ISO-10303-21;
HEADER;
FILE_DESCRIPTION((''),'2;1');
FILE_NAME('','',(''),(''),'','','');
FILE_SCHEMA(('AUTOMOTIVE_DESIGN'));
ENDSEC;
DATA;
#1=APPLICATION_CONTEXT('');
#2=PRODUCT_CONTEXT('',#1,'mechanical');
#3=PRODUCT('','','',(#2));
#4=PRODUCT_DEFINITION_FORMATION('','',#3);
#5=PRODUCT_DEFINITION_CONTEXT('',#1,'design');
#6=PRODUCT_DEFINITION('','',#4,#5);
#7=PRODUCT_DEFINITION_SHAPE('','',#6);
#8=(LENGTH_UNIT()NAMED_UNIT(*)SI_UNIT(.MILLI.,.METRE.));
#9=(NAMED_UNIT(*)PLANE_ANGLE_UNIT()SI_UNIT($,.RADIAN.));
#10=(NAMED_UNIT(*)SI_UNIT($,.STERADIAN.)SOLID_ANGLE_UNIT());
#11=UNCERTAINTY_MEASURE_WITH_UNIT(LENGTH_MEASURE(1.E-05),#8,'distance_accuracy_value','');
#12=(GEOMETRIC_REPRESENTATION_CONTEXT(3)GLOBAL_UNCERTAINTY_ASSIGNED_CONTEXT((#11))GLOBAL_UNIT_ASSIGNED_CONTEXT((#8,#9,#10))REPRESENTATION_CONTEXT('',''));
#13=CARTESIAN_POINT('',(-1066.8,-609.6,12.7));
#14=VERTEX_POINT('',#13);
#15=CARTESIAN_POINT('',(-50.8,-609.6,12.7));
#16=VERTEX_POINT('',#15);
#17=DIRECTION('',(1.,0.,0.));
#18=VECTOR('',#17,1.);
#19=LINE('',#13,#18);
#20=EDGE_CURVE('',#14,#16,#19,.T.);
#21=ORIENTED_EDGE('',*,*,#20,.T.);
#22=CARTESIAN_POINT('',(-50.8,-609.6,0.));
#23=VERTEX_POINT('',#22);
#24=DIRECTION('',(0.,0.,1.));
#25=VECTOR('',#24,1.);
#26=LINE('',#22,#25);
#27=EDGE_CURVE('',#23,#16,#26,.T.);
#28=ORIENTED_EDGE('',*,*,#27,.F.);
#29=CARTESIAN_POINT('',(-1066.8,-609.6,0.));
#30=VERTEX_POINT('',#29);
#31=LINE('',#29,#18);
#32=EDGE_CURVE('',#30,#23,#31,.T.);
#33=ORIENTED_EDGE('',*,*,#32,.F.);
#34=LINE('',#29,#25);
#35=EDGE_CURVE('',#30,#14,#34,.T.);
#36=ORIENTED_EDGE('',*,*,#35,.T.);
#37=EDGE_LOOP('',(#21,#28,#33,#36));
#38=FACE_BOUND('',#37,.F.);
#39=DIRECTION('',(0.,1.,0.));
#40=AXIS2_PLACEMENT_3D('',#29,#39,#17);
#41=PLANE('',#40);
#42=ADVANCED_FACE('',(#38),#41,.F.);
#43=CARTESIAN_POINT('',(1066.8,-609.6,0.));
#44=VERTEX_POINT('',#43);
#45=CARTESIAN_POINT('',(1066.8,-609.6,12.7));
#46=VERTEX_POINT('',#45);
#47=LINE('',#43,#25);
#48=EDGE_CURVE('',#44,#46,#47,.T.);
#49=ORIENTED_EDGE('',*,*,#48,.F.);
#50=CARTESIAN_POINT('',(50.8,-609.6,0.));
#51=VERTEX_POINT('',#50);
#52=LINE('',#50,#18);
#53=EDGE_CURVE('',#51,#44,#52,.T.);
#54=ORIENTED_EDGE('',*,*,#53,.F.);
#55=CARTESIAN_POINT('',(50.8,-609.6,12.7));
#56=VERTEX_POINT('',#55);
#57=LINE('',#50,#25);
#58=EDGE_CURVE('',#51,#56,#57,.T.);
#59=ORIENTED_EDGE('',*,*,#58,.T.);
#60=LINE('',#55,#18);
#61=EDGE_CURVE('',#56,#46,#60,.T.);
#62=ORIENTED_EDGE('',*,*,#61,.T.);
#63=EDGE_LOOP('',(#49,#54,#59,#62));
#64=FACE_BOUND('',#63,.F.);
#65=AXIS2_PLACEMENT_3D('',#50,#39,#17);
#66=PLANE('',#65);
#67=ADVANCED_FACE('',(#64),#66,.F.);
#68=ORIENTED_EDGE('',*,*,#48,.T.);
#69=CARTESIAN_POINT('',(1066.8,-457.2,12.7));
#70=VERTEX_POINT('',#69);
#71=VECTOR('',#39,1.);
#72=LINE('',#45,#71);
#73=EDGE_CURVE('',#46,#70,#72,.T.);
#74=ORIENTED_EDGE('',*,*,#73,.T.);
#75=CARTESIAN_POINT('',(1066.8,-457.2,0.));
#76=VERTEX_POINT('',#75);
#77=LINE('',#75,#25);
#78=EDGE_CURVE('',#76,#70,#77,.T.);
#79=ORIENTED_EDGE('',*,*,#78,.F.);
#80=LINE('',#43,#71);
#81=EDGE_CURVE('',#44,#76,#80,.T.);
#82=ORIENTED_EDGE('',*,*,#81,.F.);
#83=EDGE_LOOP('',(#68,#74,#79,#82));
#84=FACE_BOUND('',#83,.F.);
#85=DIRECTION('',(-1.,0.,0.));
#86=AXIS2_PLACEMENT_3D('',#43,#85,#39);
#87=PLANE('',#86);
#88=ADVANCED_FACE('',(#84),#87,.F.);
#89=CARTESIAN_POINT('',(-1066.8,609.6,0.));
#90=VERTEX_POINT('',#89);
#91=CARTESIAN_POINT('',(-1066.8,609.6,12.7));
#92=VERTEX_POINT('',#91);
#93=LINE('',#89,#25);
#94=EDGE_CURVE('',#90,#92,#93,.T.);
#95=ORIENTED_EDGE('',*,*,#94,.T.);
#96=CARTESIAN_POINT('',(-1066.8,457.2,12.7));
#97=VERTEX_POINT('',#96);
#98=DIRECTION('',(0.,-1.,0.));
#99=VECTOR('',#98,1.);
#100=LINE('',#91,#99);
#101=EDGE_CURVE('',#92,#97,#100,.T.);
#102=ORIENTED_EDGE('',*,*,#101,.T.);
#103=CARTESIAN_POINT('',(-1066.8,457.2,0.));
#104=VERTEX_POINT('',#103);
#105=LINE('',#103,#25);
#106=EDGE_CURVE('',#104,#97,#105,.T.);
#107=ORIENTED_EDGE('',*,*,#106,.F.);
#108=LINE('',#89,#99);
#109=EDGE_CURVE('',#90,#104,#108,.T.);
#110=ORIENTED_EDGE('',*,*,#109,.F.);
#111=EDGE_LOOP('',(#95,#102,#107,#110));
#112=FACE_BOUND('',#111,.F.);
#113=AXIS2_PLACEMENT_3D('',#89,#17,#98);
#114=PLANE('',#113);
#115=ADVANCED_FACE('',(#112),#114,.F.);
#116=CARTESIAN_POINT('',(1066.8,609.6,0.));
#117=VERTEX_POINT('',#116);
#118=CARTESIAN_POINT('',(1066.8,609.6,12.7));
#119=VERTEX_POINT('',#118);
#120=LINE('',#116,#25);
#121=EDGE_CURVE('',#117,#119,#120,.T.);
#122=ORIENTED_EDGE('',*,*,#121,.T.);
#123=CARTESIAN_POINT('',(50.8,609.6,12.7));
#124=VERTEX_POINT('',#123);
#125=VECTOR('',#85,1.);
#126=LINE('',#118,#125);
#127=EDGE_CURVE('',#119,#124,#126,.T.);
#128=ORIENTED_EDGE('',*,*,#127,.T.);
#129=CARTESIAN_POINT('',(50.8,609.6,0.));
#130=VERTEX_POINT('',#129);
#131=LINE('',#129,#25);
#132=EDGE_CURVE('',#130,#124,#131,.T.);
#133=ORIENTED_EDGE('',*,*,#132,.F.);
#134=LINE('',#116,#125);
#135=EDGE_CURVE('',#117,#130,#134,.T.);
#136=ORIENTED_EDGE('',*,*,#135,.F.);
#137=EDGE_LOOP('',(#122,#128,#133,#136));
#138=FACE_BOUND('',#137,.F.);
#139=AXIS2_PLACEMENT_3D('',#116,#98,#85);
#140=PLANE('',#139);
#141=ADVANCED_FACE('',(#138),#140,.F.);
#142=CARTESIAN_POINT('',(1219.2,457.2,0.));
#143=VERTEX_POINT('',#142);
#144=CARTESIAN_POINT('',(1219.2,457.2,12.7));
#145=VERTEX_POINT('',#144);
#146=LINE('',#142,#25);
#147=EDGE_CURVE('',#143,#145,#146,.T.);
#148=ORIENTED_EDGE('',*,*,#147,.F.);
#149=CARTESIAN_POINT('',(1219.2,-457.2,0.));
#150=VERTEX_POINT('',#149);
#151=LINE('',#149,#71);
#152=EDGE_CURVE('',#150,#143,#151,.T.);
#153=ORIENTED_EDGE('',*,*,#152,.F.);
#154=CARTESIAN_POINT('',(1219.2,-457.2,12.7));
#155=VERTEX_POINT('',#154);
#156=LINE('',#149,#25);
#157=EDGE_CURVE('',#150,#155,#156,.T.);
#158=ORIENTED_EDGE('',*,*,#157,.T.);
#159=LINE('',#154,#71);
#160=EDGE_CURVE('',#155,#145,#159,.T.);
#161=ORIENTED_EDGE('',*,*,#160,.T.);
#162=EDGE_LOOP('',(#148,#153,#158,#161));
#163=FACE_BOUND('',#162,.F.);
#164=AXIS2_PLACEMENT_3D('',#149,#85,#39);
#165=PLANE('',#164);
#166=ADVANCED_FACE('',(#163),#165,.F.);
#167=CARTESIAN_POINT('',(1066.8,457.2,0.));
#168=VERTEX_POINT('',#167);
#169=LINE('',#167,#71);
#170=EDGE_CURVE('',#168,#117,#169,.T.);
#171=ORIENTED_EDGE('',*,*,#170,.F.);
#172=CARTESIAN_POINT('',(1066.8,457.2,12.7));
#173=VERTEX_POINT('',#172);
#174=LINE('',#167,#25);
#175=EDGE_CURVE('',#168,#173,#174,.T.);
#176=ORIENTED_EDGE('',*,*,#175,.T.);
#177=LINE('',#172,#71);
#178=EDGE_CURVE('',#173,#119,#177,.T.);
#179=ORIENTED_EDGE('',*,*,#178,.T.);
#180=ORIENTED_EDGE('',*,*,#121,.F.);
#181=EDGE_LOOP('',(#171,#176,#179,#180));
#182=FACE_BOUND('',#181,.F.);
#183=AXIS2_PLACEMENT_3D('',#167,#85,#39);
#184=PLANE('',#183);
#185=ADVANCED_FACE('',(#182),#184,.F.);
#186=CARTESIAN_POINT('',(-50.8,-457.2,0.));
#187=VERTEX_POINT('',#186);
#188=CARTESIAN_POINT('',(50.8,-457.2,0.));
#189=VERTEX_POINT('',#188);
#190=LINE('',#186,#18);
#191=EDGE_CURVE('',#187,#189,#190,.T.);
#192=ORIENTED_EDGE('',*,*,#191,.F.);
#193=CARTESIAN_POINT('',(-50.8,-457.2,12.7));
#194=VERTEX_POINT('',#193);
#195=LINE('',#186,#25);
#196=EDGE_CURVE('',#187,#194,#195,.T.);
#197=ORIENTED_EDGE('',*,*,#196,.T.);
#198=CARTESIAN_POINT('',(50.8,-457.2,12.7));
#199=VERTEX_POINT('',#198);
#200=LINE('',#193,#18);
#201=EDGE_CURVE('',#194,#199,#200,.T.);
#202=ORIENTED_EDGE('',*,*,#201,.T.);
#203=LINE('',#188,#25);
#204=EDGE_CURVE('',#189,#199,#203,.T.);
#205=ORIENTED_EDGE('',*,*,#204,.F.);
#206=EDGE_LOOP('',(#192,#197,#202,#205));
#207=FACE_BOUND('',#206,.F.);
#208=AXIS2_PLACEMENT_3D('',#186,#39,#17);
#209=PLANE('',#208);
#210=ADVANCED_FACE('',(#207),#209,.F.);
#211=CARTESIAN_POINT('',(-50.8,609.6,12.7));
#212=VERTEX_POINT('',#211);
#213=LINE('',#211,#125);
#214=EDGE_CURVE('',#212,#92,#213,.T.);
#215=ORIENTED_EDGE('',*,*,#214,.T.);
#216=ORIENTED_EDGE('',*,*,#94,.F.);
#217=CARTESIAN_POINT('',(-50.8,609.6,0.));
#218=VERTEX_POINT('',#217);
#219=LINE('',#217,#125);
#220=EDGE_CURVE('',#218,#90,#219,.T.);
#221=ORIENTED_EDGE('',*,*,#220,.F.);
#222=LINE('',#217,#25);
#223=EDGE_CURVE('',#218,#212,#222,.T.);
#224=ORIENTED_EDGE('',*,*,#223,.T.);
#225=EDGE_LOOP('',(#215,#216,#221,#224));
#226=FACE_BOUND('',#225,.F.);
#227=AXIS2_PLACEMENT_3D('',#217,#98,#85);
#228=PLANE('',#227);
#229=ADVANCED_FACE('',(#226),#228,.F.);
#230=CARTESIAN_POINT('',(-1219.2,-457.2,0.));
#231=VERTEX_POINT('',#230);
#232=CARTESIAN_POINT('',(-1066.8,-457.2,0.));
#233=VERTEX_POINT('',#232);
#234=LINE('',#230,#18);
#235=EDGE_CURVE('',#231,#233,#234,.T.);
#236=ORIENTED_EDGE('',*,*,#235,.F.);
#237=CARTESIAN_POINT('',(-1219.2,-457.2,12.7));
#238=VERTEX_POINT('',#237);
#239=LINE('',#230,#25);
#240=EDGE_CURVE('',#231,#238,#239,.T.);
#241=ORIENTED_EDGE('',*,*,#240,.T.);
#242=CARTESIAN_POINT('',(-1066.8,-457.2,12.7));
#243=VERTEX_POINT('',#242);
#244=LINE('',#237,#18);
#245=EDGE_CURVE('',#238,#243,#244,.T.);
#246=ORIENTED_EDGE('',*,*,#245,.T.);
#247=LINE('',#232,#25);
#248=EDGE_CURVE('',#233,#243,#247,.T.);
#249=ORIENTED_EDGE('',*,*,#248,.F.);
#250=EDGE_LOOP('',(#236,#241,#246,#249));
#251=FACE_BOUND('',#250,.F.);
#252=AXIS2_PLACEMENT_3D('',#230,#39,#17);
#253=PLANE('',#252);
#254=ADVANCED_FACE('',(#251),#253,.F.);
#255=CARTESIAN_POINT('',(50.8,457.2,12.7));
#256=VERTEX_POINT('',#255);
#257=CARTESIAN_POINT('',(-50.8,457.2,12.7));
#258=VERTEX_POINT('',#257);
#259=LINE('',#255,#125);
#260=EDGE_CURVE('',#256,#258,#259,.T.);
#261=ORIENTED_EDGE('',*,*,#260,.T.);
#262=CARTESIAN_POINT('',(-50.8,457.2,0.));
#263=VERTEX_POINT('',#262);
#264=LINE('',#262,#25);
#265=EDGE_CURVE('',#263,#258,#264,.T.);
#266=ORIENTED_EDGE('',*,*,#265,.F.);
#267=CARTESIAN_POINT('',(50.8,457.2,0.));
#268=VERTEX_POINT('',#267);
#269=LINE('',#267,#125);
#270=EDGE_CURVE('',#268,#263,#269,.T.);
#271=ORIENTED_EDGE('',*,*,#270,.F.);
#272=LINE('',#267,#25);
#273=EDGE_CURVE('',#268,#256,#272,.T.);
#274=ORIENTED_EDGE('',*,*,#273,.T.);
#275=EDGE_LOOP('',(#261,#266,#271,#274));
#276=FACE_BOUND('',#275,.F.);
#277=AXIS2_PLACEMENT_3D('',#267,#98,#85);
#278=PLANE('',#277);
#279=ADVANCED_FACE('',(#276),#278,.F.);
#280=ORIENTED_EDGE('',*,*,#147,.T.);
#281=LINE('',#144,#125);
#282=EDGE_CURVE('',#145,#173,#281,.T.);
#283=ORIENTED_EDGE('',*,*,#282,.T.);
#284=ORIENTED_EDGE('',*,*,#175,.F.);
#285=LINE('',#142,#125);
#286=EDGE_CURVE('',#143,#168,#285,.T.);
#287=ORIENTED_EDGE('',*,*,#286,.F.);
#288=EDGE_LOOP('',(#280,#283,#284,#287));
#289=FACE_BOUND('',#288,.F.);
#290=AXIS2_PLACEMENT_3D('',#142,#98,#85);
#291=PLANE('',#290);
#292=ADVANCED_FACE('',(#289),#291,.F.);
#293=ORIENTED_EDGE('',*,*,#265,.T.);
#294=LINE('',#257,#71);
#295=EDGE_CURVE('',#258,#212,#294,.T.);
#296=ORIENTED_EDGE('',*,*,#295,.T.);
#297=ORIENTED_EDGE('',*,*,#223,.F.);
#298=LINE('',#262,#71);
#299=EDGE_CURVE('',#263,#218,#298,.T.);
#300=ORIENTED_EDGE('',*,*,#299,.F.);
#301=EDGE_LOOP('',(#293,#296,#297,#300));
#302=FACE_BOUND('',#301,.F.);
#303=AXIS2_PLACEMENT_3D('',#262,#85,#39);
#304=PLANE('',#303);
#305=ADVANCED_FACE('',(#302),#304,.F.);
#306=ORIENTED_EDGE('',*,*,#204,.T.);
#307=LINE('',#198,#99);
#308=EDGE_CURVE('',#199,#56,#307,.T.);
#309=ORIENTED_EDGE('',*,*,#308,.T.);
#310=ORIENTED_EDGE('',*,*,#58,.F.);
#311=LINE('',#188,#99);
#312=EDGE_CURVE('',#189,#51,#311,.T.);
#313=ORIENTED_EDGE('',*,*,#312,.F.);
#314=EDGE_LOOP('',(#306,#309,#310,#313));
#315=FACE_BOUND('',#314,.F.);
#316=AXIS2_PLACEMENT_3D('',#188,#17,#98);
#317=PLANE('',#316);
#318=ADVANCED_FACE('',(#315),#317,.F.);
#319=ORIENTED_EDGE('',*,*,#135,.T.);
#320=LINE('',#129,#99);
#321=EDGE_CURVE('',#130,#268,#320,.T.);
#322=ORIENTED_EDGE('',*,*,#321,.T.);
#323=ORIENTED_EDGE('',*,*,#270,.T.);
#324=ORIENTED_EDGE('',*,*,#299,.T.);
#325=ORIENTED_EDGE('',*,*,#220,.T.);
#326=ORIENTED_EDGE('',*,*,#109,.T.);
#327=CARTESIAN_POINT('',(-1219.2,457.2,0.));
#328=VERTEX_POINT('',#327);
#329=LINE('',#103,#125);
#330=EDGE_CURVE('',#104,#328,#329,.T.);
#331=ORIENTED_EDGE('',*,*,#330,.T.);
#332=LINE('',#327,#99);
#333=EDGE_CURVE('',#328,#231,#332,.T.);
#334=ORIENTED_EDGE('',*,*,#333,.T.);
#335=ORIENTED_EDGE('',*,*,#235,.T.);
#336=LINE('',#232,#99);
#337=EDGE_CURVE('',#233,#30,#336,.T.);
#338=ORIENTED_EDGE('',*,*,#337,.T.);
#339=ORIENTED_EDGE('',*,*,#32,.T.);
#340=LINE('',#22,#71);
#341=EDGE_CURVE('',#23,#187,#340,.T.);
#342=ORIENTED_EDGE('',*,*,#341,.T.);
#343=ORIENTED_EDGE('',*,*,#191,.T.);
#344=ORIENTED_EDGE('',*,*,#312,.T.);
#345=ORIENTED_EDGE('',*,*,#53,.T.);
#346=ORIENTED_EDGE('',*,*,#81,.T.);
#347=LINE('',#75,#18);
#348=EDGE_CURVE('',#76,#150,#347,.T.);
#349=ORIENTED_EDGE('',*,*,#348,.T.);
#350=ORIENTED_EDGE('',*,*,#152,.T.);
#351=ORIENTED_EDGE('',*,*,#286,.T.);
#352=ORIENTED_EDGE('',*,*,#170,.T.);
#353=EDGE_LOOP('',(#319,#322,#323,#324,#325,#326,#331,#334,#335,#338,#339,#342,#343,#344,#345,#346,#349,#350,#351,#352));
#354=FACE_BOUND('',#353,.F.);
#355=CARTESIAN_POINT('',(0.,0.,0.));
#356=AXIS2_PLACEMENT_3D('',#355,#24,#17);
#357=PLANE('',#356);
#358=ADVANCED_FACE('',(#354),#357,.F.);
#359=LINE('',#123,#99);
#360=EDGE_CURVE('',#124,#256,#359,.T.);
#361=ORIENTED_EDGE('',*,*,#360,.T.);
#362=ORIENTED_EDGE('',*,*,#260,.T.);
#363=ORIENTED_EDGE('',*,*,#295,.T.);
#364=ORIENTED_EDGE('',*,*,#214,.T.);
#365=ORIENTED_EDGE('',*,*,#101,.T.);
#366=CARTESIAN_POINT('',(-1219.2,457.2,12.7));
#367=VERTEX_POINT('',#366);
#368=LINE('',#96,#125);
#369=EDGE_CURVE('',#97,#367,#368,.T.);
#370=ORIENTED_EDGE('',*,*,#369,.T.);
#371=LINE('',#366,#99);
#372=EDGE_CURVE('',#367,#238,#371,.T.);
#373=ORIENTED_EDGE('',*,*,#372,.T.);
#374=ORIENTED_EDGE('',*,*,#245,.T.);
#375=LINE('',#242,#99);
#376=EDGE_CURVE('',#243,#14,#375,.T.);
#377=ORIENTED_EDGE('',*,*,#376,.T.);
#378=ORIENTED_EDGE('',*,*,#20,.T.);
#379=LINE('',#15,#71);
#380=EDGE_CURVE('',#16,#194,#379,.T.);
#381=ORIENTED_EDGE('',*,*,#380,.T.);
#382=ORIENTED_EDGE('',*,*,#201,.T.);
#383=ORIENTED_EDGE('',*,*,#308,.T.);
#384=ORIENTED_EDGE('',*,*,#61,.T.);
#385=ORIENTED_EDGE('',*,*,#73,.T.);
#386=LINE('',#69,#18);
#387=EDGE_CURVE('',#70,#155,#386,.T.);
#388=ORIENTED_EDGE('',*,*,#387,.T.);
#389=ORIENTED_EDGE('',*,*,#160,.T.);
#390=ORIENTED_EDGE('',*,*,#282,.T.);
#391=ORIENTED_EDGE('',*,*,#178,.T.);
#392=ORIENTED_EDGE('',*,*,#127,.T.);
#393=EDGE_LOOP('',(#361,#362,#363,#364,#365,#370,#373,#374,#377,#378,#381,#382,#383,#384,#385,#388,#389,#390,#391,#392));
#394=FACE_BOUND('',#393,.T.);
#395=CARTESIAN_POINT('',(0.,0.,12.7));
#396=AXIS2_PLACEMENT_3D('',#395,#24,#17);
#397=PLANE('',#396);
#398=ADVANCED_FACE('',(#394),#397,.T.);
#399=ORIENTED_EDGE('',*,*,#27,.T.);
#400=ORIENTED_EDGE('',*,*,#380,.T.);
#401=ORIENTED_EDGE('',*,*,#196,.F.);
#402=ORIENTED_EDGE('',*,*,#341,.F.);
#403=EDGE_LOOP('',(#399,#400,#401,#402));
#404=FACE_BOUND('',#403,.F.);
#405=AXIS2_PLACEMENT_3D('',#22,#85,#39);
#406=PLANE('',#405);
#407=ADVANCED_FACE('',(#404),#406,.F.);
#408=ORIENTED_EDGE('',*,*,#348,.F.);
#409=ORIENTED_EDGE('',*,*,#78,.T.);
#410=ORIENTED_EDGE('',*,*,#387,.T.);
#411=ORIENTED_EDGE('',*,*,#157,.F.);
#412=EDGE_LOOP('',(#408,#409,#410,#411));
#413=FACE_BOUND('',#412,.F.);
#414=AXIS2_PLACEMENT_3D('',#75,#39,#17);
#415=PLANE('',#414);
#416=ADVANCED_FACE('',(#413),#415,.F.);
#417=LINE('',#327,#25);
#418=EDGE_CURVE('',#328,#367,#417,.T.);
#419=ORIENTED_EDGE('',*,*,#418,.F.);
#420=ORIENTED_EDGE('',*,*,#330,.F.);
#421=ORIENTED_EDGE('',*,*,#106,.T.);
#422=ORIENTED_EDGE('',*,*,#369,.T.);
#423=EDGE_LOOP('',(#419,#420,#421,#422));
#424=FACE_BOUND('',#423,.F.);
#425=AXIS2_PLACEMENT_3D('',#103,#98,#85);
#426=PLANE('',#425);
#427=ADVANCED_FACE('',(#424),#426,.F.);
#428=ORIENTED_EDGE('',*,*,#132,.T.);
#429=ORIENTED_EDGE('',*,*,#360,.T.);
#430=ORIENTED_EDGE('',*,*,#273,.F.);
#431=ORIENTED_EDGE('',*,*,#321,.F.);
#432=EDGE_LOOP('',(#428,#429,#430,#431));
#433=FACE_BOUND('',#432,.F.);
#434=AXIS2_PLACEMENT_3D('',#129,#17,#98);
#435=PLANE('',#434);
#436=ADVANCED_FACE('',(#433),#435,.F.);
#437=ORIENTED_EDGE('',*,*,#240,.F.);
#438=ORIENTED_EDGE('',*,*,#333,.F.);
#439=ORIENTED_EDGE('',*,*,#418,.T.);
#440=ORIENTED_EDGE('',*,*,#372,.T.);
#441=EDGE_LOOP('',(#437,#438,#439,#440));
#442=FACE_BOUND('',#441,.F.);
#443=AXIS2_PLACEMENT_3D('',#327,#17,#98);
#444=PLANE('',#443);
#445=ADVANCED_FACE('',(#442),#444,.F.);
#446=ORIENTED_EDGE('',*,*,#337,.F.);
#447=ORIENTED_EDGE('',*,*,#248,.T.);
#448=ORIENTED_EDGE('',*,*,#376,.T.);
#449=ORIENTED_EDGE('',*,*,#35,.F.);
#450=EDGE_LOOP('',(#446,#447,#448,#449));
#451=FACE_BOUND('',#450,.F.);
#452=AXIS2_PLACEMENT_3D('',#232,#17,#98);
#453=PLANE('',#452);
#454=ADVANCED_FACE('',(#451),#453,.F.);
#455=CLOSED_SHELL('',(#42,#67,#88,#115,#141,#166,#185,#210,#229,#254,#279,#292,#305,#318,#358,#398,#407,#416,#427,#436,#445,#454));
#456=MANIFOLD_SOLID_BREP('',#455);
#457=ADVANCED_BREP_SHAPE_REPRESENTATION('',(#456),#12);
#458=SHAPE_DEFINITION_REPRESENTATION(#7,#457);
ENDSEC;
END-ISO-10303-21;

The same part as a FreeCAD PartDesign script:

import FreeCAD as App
import Part
import Sketcher

V = App.Vector
Q = App.Units.Quantity


def add_polygon(sketch, points):
    """Adds a closed chain of lines whose ends are joined by coincident constraints."""
    first, n = sketch.GeometryCount, len(points)
    for a, b in zip(points, points[1:] + points[:1]):
        sketch.addGeometry(Part.LineSegment(App.Vector(*a, 0), App.Vector(*b, 0)), False)
    for i in range(n):
        sketch.addConstraint(Sketcher.Constraint("Coincident", first + i, 2, first + (i + 1) % n, 1))

doc = App.newDocument("Part")
params = doc.addObject("Spreadsheet::Sheet", "Params")
for row, (alias, value) in enumerate([
    ("sketch1_width", "40 in"),
    ("sketch1_width2", "4 in"),
    ("sketch1_width3", "6 in"),
    ("sketch1_height", "36 in"),
    ("pad1_length", "0.5 in"),
], start=1):
    params.set(f"A{row}", alias)
    params.set(f"B{row}", "=" + value)
    params.setAlias(f"B{row}", alias)

body = doc.addObject("PartDesign::Body", "Body")

sketch1 = body.newObject("Sketcher::SketchObject", "Sketch")
sketch1.AttachmentSupport = (doc.getObject("XY_Plane"), [""])
sketch1.MapMode = "FlatFace"
add_polygon(sketch1, [(-1066.8, -457.2), (-1066.8, -609.6), (-50.8, -609.6), (-50.8, -457.2), (50.8, -457.2), (50.8, -609.6), (1066.8, -609.6), (1066.8, -457.2), (1219.2, -457.2), (1219.2, 457.2), (1066.8, 457.2), (1066.8, 609.6), (50.8, 609.6), (50.8, 457.2), (-50.8, 457.2), (-50.8, 609.6), (-1066.8, 609.6), (-1066.8, 457.2), (-1219.2, 457.2), (-1219.2, -457.2)])
sketch1.addConstraint([
    Sketcher.Constraint("Vertical", 0),
    Sketcher.Constraint("Horizontal", 1),
    Sketcher.Constraint("Vertical", 2),
    Sketcher.Constraint("Horizontal", 3),
    Sketcher.Constraint("Vertical", 4),
    Sketcher.Constraint("Horizontal", 5),
    Sketcher.Constraint("Vertical", 6),
    Sketcher.Constraint("Horizontal", 7),
    Sketcher.Constraint("Vertical", 8),
    Sketcher.Constraint("Horizontal", 9),
    Sketcher.Constraint("Vertical", 10),
    Sketcher.Constraint("Horizontal", 11),
    Sketcher.Constraint("Vertical", 12),
    Sketcher.Constraint("Horizontal", 13),
    Sketcher.Constraint("Vertical", 14),
    Sketcher.Constraint("Horizontal", 15),
    Sketcher.Constraint("Vertical", 16),
    Sketcher.Constraint("Horizontal", 17),
    Sketcher.Constraint("Vertical", 18),
    Sketcher.Constraint("Horizontal", 19),
    Sketcher.Constraint("Symmetric", 0, 2, 10, 2, -1, 1),
    Sketcher.Constraint("Symmetric", 2, 2, 12, 2, -1, 1),
    Sketcher.Constraint("Symmetric", 4, 2, 14, 2, -1, 1),
    Sketcher.Constraint("Symmetric", 6, 2, 16, 2, -1, 1),
    Sketcher.Constraint("Symmetric", 8, 2, 18, 2, -1, 1),
    Sketcher.Constraint("Symmetric", 1, 2, 4, 2, -2),
    Sketcher.Constraint("Symmetric", 9, 2, 16, 2, -2),
    Sketcher.Constraint("Horizontal", 3, 2, 6, 2),
    Sketcher.Constraint("Equal", 19, 0),
    Sketcher.Constraint("DistanceX", 1, 1, 1, 2, Q("40 in")),
    Sketcher.Constraint("DistanceX", 3, 1, 3, 2, Q("4 in")),
    Sketcher.Constraint("DistanceX", 7, 1, 7, 2, Q("6 in")),
    Sketcher.Constraint("DistanceY", 8, 1, 8, 2, Q("36 in")),
])
sketch1.setExpression("Constraints[49]", "Params.sketch1_width")
sketch1.setExpression("Constraints[50]", "Params.sketch1_width2")
sketch1.setExpression("Constraints[51]", "Params.sketch1_width3")
sketch1.setExpression("Constraints[52]", "Params.sketch1_height")
pad1 = body.newObject("PartDesign::Pad", "Pad")
pad1.Profile = sketch1
pad1.setExpression("Length", "Params.pad1_length")

doc.recompute()
